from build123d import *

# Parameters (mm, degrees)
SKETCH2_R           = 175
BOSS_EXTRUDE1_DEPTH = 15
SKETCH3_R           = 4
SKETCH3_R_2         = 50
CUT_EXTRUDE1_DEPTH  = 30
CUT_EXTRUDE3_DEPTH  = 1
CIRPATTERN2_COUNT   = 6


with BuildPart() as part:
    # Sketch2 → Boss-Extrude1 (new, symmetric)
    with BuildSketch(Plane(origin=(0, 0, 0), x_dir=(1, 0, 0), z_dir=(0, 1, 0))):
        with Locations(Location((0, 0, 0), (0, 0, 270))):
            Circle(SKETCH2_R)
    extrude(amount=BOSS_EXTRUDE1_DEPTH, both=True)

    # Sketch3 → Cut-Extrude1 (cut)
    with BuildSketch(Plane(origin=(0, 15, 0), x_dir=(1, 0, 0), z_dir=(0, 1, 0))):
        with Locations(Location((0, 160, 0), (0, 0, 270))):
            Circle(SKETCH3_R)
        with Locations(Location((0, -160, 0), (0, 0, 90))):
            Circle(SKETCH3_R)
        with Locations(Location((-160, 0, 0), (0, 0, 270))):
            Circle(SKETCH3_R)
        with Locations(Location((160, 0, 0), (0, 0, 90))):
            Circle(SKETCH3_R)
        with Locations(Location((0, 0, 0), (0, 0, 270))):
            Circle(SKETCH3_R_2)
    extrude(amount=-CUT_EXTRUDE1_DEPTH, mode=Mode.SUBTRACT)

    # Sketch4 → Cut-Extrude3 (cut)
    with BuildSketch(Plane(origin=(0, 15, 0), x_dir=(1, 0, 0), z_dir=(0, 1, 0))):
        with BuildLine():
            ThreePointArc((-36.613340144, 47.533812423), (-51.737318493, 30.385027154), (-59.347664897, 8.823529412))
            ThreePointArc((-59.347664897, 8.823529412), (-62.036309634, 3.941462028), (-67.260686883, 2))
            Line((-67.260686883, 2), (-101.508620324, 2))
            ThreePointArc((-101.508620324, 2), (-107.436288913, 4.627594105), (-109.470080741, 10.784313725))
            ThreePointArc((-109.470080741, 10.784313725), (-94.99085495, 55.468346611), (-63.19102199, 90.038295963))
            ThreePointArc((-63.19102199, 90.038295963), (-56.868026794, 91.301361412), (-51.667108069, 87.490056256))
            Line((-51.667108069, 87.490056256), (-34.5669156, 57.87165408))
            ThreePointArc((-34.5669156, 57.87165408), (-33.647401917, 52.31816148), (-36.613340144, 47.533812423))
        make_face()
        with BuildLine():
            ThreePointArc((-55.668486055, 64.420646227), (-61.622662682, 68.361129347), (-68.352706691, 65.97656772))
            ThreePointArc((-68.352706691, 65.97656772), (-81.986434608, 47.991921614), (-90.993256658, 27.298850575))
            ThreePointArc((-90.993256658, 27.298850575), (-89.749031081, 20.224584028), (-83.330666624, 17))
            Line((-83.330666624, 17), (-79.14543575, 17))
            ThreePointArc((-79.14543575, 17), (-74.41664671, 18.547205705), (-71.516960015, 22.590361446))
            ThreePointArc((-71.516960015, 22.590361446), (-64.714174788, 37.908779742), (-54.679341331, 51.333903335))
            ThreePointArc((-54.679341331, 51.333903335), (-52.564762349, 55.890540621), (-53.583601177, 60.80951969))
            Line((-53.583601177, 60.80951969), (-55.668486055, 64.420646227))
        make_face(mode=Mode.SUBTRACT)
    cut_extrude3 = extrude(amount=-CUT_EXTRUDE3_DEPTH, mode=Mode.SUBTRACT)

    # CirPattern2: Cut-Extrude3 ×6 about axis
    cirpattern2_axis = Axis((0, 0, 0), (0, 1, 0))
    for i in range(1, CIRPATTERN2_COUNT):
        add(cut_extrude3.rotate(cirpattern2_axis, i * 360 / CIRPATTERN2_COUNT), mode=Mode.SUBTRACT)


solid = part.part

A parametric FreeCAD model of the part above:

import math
import FreeCAD as App
import Part
import Sketcher
Q = App.Units.Quantity

doc = App.newDocument("Part")
body = doc.addObject("PartDesign::Body", "Body")

# Sketch on XZ plane
sketch1 = body.newObject("Sketcher::SketchObject", "Sketch")
sketch1.AttachmentSupport = (doc.getObject("XZ_Plane"), [""])
sketch1.MapMode = "FlatFace"
sketch1.addGeometry(Part.Circle(App.Vector(0, 0, 0), App.Vector(0, 0, 1), 175), False)
sketch1.addConstraint(Sketcher.Constraint("Coincident", 0, 3, -1, 1))
sketch1.addConstraint(Sketcher.Constraint("Diameter", 0, 350.0))
pad1 = body.newObject("PartDesign::Pad", "Pad")
pad1.Profile = sketch1
pad1.Length = 30
pad1.Midplane = True

# Sketch on XZ plane
sketch2 = body.newObject("Sketcher::SketchObject", "Sketch001")
sketch2.AttachmentSupport = (doc.getObject("XZ_Plane"), [""])
sketch2.MapMode = "FlatFace"
sketch2.AttachmentOffset = App.Placement(App.Vector(0, 0, -15), App.Rotation())
sketch2.addGeometry(Part.Circle(App.Vector(0, -160, 0), App.Vector(0, 0, 1), 4), False)
sketch2.addGeometry(Part.Circle(App.Vector(0, 160, 0), App.Vector(0, 0, 1), 4), False)
sketch2.addGeometry(Part.Circle(App.Vector(-160, 0, 0), App.Vector(0, 0, 1), 4), False)
sketch2.addGeometry(Part.Circle(App.Vector(160, 0, 0), App.Vector(0, 0, 1), 4), False)
sketch2.addGeometry(Part.Circle(App.Vector(0, 0, 0), App.Vector(0, 0, 1), 50), False)
sketch2.addConstraint(Sketcher.Constraint("Coincident", 4, 3, -1, 1))
sketch2.addConstraint(Sketcher.Constraint("Equal", 0, 1))
sketch2.addConstraint(Sketcher.Constraint("Equal", 1, 2))
sketch2.addConstraint(Sketcher.Constraint("Equal", 2, 3))
sketch2.addConstraint(Sketcher.Constraint("Symmetric", 0, 3, 1, 3, -1, 1))
sketch2.addConstraint(Sketcher.Constraint("Symmetric", 2, 3, 3, 3, -1, 1))
sketch2.addConstraint(Sketcher.Constraint("PointOnObject", 0, 3, -2))
sketch2.addConstraint(Sketcher.Constraint("PointOnObject", 2, 3, -1))
sketch2.addConstraint(Sketcher.Constraint("Diameter", 0, 8.0))
sketch2.addConstraint(Sketcher.Constraint("Diameter", 4, 100.0))
sketch2.addConstraint(Sketcher.Constraint("DistanceY", 0, 3, -1, 1, 160.0))
sketch2.addConstraint(Sketcher.Constraint("DistanceX", 2, 3, -1, 1, 160.0))
pocket1 = body.newObject("PartDesign::Pocket", "Pocket")
pocket1.Profile = sketch2
pocket1.Length = 30
pocket1.Reversed = True

# Sketch on XZ plane
sketch3 = body.newObject("Sketcher::SketchObject", "Sketch002")
sketch3.AttachmentSupport = (doc.getObject("XZ_Plane"), [""])
sketch3.MapMode = "FlatFace"
sketch3.AttachmentOffset = App.Placement(App.Vector(0, 0, -15), App.Rotation())
sketch3.addGeometry(Part.ArcOfCircle(Part.Circle(App.Vector(0, 0, 0), App.Vector(0, 0, 1), 60), math.radians(-171.543481), math.radians(-127.605581)), False)
sketch3.addGeometry(Part.ArcOfCircle(Part.Circle(App.Vector(-41.495119, -53.871654, 0), App.Vector(0, 0, 1), 8), math.radians(-30), math.radians(52.394419)), False)
sketch3.addGeometry(Part.LineSegment(App.Vector(-34.566916, -57.871654, 0), App.Vector(-51.667108, -87.490056, 0)), False)
sketch3.addGeometry(Part.ArcOfCircle(Part.Circle(App.Vector(-58.595311, -83.490056, 0), App.Vector(0, 0, 1), 8), math.radians(-125.062093), math.radians(-30)), False)
sketch3.addGeometry(Part.ArcOfCircle(Part.Circle(App.Vector(0, 0, 0), App.Vector(0, 0, 1), 110), math.radians(-174.373729), math.radians(-125.062093)), False)
sketch3.addGeometry(Part.ArcOfCircle(Part.Circle(App.Vector(-101.50862, -10, 0), App.Vector(0, 0, 1), 8), math.radians(90), math.radians(185.626271)), False)
sketch3.addGeometry(Part.LineSegment(App.Vector(-101.50862, -2, 0), App.Vector(-67.260687, -2, 0)), False)
sketch3.addGeometry(Part.ArcOfCircle(Part.Circle(App.Vector(-67.260687, -10, 0), App.Vector(0, 0, 1), 8), math.radians(8.456519), math.radians(90)), False)
sketch3.addGeometry(Part.LineSegment(App.Vector(-55.668486, -64.420646, 0), App.Vector(-53.583601, -60.80952, 0)), False)
sketch3.addGeometry(Part.ArcOfCircle(Part.Circle(App.Vector(-60.511804, -56.80952, 0), App.Vector(0, 0, 1), 8), math.radians(-30), math.radians(43.192529)), False)
sketch3.addGeometry(Part.ArcOfCircle(Part.Circle(App.Vector(0, 0, 0), App.Vector(0, 0, 1), 75), math.radians(-162.470018), math.radians(-136.807471)), False)
sketch3.addGeometry(Part.ArcOfCircle(Part.Circle(App.Vector(-79.145436, -25, 0), App.Vector(0, 0, 1), 8), math.radians(17.529982), math.radians(90)), False)
sketch3.addGeometry(Part.LineSegment(App.Vector(-79.145436, -17, 0), App.Vector(-83.330667, -17, 0)), False)
sketch3.addGeometry(Part.ArcOfCircle(Part.Circle(App.Vector(-83.330667, -25, 0), App.Vector(0, 0, 1), 8), math.radians(90), math.radians(196.699749)), False)
sketch3.addGeometry(Part.ArcOfCircle(Part.Circle(App.Vector(0, 0, 0), App.Vector(0, 0, 1), 95), math.radians(-163.300251), math.radians(-136.013394)), False)
sketch3.addGeometry(Part.ArcOfCircle(Part.Circle(App.Vector(-62.596689, -60.420646, 0), App.Vector(0, 0, 1), 8), math.radians(-136.013394), math.radians(-30)), False)
sketch3.addConstraint(Sketcher.Constraint("Tangent", 0, 2, 1, 2))
sketch3.addConstraint(Sketcher.Constraint("Tangent", 1, 1, 2, 1))
sketch3.addConstraint(Sketcher.Constraint("Tangent", 2, 2, 3, 2))
sketch3.addConstraint(Sketcher.Constraint("Tangent", 3, 1, 4, 2))
sketch3.addConstraint(Sketcher.Constraint("Tangent", 4, 1, 5, 2))
sketch3.addConstraint(Sketcher.Constraint("Tangent", 5, 1, 6, 1))
sketch3.addConstraint(Sketcher.Constraint("Tangent", 6, 2, 7, 2))
sketch3.addConstraint(Sketcher.Constraint("Tangent", 7, 1, 0, 1))
sketch3.addConstraint(Sketcher.Constraint("Tangent", 8, 2, 9, 1))
sketch3.addConstraint(Sketcher.Constraint("Tangent", 9, 2, 10, 2))
sketch3.addConstraint(Sketcher.Constraint("Tangent", 10, 1, 11, 1))
sketch3.addConstraint(Sketcher.Constraint("Tangent", 11, 2, 12, 1))
sketch3.addConstraint(Sketcher.Constraint("Tangent", 12, 2, 13, 1))
sketch3.addConstraint(Sketcher.Constraint("Tangent", 13, 2, 14, 1))
sketch3.addConstraint(Sketcher.Constraint("Tangent", 14, 2, 15, 1))
sketch3.addConstraint(Sketcher.Constraint("Tangent", 15, 2, 8, 1))
sketch3.addConstraint(Sketcher.Constraint("Horizontal", 6))
sketch3.addConstraint(Sketcher.Constraint("Horizontal", 12))
sketch3.addConstraint(Sketcher.Constraint("Coincident", 0, 3, -1, 1))
sketch3.addConstraint(Sketcher.Constraint("Coincident", 4, 3, -1, 1))
sketch3.addConstraint(Sketcher.Constraint("Coincident", 10, 3, -1, 1))
sketch3.addConstraint(Sketcher.Constraint("Coincident", 14, 3, -1, 1))
sketch3.addConstraint(Sketcher.Constraint("Equal", 1, 3))
sketch3.addConstraint(Sketcher.Constraint("Equal", 3, 5))
sketch3.addConstraint(Sketcher.Constraint("Equal", 5, 7))
sketch3.addConstraint(Sketcher.Constraint("Equal", 7, 9))
sketch3.addConstraint(Sketcher.Constraint("Equal", 9, 11))
sketch3.addConstraint(Sketcher.Constraint("Equal", 11, 13))
sketch3.addConstraint(Sketcher.Constraint("Equal", 13, 15))
sketch3.addConstraint(Sketcher.Constraint("Parallel", 2, 8))
sketch3.addConstraint(Sketcher.Constraint("Radius", 0, 60.0))
sketch3.addConstraint(Sketcher.Constraint("Radius", 1, 8.0))
sketch3.addConstraint(Sketcher.Constraint("Radius", 4, 110.0))
sketch3.addConstraint(Sketcher.Constraint("Radius", 10, 75.0))
sketch3.addConstraint(Sketcher.Constraint("Radius", 14, 95.0))
sketch3.addConstraint(Sketcher.Constraint("Angle", 2, Q("-120 deg")))
sketch3.addConstraint(Sketcher.Constraint("DistanceY", 5, 3, -1, 1, 10.0))
sketch3.addConstraint(Sketcher.Constraint("DistanceY", 11, 3, -1, 1, 25.0))
sketch3.addConstraint(Sketcher.Constraint("DistanceX", 9, 2, 0, 2, 18.066001))
sketch3.addConstraint(Sketcher.Constraint("DistanceX", 8, 2, -1, 1, 53.583601))
pocket2 = body.newObject("PartDesign::Pocket", "Pocket001")
pocket2.Profile = sketch3
pocket2.Length = 1
pocket2.Reversed = True
doc.recompute()

polarpattern = body.newObject("PartDesign::PolarPattern", "PolarPattern")
polarpattern.Originals = [pocket2]
polarpattern.Axis = (doc.getObject("Y_Axis"), [""])
polarpattern.Angle = 360
polarpattern.Occurrences = 6
body.Tip = polarpattern

doc.recompute()
